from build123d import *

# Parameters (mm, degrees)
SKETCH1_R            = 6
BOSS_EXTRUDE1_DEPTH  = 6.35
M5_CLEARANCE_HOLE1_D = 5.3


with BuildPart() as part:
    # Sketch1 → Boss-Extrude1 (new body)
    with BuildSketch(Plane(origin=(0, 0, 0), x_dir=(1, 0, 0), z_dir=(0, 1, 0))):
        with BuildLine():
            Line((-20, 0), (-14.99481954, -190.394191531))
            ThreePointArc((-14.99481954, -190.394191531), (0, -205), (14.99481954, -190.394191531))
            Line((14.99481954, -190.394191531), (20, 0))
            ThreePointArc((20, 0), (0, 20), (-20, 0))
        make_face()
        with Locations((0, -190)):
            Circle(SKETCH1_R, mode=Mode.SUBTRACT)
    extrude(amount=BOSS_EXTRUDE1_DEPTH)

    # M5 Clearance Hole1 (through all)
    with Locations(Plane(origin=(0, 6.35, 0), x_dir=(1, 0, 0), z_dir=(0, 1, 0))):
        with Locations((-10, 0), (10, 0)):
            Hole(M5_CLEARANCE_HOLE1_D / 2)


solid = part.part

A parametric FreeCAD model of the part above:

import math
import FreeCAD as App
import Part
import Sketcher
from FreeCAD import Vector
Q = App.Units.Quantity

doc = App.newDocument("Part")
body = doc.addObject("PartDesign::Body", "Body")

sketch1 = doc.addObject("Sketcher::SketchObject", "Sketch")
body.addObject(sketch1)
sketch1.AttachmentSupport = (doc.XZ_Plane, [""])
sketch1.MapMode = "FlatFace"
sketch1.addGeometry(Part.LineSegment(Vector(-20, 0, 0), Vector(-15, 190, 0)), False)
sketch1.addGeometry(Part.ArcOfCircle(Part.Circle(Vector(0, 190, 0), Vector(0, 0, 1), 15), math.radians(2), math.radians(178)), False)
sketch1.addGeometry(Part.LineSegment(Vector(15, 190, 0), Vector(20, 0, 0)), False)
sketch1.addGeometry(Part.ArcOfCircle(Part.Circle(Vector(0, 0, 0), Vector(0, 0, 1), 20), math.radians(180), math.radians(360)), False)
sketch1.addGeometry(Part.Circle(Vector(0, 190, 0), Vector(0, 0, 1), 6), False)
sketch1.addConstraint(Sketcher.Constraint("Tangent", 0, 2, 1, 2))
sketch1.addConstraint(Sketcher.Constraint("Tangent", 1, 1, 2, 1))
sketch1.addConstraint(Sketcher.Constraint("Coincident", 2, 2, 3, 2))
sketch1.addConstraint(Sketcher.Constraint("Coincident", 3, 1, 0, 1))
sketch1.addConstraint(Sketcher.Constraint("Coincident", 3, 3, -1, 1))
sketch1.addConstraint(Sketcher.Constraint("Coincident", 4, 3, 1, 3))
sketch1.addConstraint(Sketcher.Constraint("PointOnObject", 1, 3, -2))
sketch1.addConstraint(Sketcher.Constraint("PointOnObject", 2, 2, -1))
sketch1.addConstraint(Sketcher.Constraint("PointOnObject", 3, 1, -1))
sketch1.addConstraint(Sketcher.Constraint("Diameter", 4, Q("12 mm")))
sketch1.addConstraint(Sketcher.Constraint("Radius", 1, Q("15 mm")))
sketch1.addConstraint(Sketcher.Constraint("Radius", 3, Q("20 mm")))
sketch1.addConstraint(Sketcher.Constraint("DistanceY", -1, 1, 1, 3, Q("190 mm")))
pad1 = doc.addObject("PartDesign::Pad", "Pad")
body.addObject(pad1)
pad1.Profile = sketch1
pad1.Length = 6.35
pad1.Reversed = True

sketch2 = doc.addObject("Sketcher::SketchObject", "Sketch001")
body.addObject(sketch2)
sketch2.AttachmentSupport = (doc.XZ_Plane, [""])
sketch2.MapMode = "FlatFace"
sketch2.AttachmentOffset = App.Placement(Vector(0, 0, -6.35), App.Rotation())
sketch2.addGeometry(Part.Circle(Vector(-10, 0, 0), Vector(0, 0, 1), 2.6), False)
sketch2.addGeometry(Part.Circle(Vector(10, 0, 0), Vector(0, 0, 1), 2.6), False)
sketch2.addConstraint(Sketcher.Constraint("Equal", 0, 1))
sketch2.addConstraint(Sketcher.Constraint("Symmetric", 0, 3, 1, 3, -1, 1))
sketch2.addConstraint(Sketcher.Constraint("PointOnObject", 0, 3, -1))
sketch2.addConstraint(Sketcher.Constraint("Diameter", 0, Q("5.3 mm")))
sketch2.addConstraint(Sketcher.Constraint("DistanceX", 0, 3, -1, 1, Q("10 mm")))
doc.recompute()
hole = doc.addObject("PartDesign::Hole", "Hole")
body.addObject(hole)
hole.Profile = sketch2
hole.ThreadType = "None"
hole.Diameter = 5.3
hole.DepthType = "ThroughAll"
hole.Reversed = True

doc.recompute()
